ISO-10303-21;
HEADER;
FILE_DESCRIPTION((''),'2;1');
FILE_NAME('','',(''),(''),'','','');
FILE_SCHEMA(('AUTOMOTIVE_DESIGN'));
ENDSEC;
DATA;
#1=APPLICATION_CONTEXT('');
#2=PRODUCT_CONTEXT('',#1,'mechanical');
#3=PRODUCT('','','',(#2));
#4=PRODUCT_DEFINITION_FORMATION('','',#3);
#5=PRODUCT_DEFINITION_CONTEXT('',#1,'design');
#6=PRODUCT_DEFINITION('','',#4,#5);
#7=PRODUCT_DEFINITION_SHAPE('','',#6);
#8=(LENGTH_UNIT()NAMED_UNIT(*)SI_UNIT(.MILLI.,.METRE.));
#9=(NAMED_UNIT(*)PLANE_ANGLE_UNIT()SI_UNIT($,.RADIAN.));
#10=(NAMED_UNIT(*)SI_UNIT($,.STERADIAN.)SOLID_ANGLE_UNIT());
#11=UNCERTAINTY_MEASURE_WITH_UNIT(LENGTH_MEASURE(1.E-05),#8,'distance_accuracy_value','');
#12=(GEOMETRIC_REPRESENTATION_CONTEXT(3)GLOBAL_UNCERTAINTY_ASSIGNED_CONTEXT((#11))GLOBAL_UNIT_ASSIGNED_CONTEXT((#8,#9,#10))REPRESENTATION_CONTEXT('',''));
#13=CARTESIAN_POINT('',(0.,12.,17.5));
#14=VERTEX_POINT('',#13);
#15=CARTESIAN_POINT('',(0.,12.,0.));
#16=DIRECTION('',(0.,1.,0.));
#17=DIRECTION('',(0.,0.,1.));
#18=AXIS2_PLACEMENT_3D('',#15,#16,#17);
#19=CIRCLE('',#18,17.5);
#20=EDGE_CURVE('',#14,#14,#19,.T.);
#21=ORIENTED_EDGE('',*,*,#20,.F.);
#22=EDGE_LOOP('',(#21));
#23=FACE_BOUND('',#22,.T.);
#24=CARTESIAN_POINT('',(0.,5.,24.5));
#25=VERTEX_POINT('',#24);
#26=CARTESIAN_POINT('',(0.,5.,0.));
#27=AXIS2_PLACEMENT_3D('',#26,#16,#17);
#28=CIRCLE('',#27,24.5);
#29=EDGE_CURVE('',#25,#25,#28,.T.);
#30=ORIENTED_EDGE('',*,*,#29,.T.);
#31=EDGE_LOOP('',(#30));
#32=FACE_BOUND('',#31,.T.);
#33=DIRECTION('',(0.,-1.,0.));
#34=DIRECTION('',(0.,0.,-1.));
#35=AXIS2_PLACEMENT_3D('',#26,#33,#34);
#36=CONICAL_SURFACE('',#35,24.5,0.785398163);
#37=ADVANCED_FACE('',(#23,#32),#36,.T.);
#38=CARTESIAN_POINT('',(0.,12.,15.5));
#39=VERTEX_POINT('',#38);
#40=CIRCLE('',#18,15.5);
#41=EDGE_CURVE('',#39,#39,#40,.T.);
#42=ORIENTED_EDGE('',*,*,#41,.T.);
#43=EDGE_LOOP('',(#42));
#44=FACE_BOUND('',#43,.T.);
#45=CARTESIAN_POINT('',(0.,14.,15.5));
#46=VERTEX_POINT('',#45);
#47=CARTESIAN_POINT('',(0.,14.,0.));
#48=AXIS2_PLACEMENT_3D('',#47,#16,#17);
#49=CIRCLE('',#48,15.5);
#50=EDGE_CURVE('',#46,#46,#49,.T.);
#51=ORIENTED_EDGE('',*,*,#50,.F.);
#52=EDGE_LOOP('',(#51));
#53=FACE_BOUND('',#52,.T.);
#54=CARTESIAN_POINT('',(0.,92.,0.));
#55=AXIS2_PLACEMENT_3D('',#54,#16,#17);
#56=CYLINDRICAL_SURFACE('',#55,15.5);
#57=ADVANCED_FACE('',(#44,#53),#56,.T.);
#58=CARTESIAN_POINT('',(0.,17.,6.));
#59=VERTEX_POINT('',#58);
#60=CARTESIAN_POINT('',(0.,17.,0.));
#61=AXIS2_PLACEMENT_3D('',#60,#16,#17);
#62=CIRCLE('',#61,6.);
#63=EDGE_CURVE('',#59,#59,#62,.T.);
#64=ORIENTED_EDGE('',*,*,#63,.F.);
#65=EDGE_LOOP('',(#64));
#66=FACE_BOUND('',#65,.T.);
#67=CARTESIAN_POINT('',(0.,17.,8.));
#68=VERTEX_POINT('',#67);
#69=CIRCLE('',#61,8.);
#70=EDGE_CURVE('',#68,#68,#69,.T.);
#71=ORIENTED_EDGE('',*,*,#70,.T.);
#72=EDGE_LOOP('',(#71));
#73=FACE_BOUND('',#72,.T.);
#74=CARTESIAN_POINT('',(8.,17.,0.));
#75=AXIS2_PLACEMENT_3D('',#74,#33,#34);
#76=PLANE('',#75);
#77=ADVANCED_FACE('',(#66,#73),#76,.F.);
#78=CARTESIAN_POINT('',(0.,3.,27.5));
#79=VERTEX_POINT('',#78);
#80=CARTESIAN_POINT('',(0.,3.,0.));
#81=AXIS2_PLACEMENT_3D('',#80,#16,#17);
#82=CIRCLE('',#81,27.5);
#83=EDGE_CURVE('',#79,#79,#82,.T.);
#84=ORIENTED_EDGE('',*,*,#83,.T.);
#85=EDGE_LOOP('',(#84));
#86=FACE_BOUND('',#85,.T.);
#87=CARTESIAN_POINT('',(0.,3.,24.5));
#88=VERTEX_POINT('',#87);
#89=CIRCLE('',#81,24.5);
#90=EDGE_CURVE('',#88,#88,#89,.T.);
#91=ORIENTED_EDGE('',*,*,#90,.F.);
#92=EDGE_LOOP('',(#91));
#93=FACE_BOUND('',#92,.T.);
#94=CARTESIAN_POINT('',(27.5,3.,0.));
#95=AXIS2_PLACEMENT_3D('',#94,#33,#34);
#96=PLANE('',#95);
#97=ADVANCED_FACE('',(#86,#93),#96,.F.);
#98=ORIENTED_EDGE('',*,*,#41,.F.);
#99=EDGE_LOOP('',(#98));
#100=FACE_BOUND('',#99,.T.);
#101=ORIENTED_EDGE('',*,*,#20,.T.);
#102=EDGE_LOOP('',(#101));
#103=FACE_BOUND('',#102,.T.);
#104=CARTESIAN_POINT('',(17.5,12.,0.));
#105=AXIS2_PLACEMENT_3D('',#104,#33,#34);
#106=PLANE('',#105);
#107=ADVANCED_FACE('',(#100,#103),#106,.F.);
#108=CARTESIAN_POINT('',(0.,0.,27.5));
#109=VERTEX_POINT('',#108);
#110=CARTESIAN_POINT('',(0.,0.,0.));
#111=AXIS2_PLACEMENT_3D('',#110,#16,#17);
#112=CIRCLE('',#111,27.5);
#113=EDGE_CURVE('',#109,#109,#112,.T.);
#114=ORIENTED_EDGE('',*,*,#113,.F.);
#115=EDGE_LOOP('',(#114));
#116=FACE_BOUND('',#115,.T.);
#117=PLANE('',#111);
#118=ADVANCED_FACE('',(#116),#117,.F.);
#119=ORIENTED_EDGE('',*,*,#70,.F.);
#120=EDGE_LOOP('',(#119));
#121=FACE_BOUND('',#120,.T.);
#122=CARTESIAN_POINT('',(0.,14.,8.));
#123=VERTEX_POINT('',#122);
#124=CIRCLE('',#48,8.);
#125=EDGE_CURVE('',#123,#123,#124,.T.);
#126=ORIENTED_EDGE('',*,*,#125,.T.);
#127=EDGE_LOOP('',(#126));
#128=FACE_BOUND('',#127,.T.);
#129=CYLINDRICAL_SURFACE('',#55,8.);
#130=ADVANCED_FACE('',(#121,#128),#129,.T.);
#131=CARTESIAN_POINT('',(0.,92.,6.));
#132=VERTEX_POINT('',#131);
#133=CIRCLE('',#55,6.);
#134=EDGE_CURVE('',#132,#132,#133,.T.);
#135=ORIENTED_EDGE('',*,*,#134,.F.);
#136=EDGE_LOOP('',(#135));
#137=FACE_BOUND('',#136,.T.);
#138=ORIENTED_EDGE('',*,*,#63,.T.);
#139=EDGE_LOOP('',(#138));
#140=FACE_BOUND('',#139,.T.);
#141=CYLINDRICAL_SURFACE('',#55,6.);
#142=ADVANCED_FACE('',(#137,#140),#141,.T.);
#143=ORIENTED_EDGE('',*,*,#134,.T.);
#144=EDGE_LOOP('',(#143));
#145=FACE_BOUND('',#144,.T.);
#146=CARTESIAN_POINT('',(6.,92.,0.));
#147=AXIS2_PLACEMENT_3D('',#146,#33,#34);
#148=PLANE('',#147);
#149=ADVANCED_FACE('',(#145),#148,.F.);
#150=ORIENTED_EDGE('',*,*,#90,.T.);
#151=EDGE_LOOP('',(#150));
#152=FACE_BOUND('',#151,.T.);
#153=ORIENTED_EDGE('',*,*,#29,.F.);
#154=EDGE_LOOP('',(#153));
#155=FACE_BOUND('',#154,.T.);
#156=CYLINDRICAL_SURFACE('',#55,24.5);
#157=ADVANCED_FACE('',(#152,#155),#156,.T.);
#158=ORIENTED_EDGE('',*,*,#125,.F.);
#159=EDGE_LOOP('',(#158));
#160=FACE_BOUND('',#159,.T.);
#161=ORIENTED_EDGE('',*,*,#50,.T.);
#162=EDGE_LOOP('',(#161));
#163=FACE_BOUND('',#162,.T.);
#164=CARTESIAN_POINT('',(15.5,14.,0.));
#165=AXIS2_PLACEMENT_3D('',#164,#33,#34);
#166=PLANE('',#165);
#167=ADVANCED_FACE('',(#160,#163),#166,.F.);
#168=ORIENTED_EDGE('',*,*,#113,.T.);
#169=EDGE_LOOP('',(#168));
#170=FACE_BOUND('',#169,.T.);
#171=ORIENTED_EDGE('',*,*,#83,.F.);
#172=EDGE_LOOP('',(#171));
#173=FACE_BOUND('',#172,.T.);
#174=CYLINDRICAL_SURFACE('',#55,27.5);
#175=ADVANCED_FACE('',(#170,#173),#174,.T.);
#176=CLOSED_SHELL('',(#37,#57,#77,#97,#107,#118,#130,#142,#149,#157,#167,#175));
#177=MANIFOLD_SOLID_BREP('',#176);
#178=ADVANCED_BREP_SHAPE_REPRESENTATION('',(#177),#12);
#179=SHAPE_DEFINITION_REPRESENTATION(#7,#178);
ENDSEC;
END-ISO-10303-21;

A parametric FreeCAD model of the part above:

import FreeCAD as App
import Part
import Sketcher
from FreeCAD import Vector
Q = App.Units.Quantity

doc = App.newDocument("Part")
body = doc.addObject("PartDesign::Body", "Body")

sketch1 = body.newObject("Sketcher::SketchObject", "Sketch")
sketch1.AttachmentSupport = (doc.getObject("XY_Plane"), [""])
sketch1.MapMode = "FlatFace"
sketch1.addGeometry(Part.LineSegment(Vector(0, 0, 0), Vector(27.5, 0, 0)), False)
sketch1.addGeometry(Part.LineSegment(Vector(27.5, 0, 0), Vector(27.5, 3, 0)), False)
sketch1.addGeometry(Part.LineSegment(Vector(27.5, 3, 0), Vector(24.5, 3, 0)), False)
sketch1.addGeometry(Part.LineSegment(Vector(24.5, 3, 0), Vector(24.5, 5, 0)), False)
sketch1.addGeometry(Part.LineSegment(Vector(24.5, 5, 0), Vector(17.5, 12, 0)), False)
sketch1.addGeometry(Part.LineSegment(Vector(17.5, 12, 0), Vector(15.5, 12, 0)), False)
sketch1.addGeometry(Part.LineSegment(Vector(15.5, 12, 0), Vector(15.5, 14, 0)), False)
sketch1.addGeometry(Part.LineSegment(Vector(15.5, 14, 0), Vector(8, 14, 0)), False)
sketch1.addGeometry(Part.LineSegment(Vector(8, 14, 0), Vector(8, 17, 0)), False)
sketch1.addGeometry(Part.LineSegment(Vector(8, 17, 0), Vector(6, 17, 0)), False)
sketch1.addGeometry(Part.LineSegment(Vector(6, 17, 0), Vector(6, 92, 0)), False)
sketch1.addGeometry(Part.LineSegment(Vector(6, 92, 0), Vector(0, 92, 0)), False)
sketch1.addGeometry(Part.LineSegment(Vector(0, 92, 0), Vector(0, 0, 0)), False)
sketch1.addConstraint(Sketcher.Constraint("Coincident", 0, 2, 1, 1))
sketch1.addConstraint(Sketcher.Constraint("Coincident", 1, 2, 2, 1))
sketch1.addConstraint(Sketcher.Constraint("Coincident", 2, 2, 3, 1))
sketch1.addConstraint(Sketcher.Constraint("Coincident", 3, 2, 4, 1))
sketch1.addConstraint(Sketcher.Constraint("Coincident", 4, 2, 5, 1))
sketch1.addConstraint(Sketcher.Constraint("Coincident", 5, 2, 6, 1))
sketch1.addConstraint(Sketcher.Constraint("Coincident", 6, 2, 7, 1))
sketch1.addConstraint(Sketcher.Constraint("Coincident", 7, 2, 8, 1))
sketch1.addConstraint(Sketcher.Constraint("Coincident", 8, 2, 9, 1))
sketch1.addConstraint(Sketcher.Constraint("Coincident", 9, 2, 10, 1))
sketch1.addConstraint(Sketcher.Constraint("Coincident", 10, 2, 11, 1))
sketch1.addConstraint(Sketcher.Constraint("Coincident", 11, 2, 12, 1))
sketch1.addConstraint(Sketcher.Constraint("Coincident", 12, 2, 0, 1))
sketch1.addConstraint(Sketcher.Constraint("Horizontal", 0))
sketch1.addConstraint(Sketcher.Constraint("Vertical", 1))
sketch1.addConstraint(Sketcher.Constraint("Horizontal", 2))
sketch1.addConstraint(Sketcher.Constraint("Vertical", 3))
sketch1.addConstraint(Sketcher.Constraint("Horizontal", 5))
sketch1.addConstraint(Sketcher.Constraint("Vertical", 6))
sketch1.addConstraint(Sketcher.Constraint("Horizontal", 7))
sketch1.addConstraint(Sketcher.Constraint("Vertical", 8))
sketch1.addConstraint(Sketcher.Constraint("Horizontal", 9))
sketch1.addConstraint(Sketcher.Constraint("Vertical", 10))
sketch1.addConstraint(Sketcher.Constraint("Horizontal", 11))
sketch1.addConstraint(Sketcher.Constraint("Vertical", 12))
sketch1.addConstraint(Sketcher.Constraint("Coincident", 12, 2, -1, 1))
sketch1.addConstraint(Sketcher.Constraint("Equal", 5, 9))
sketch1.addConstraint(Sketcher.Constraint("Equal", 2, 1))
sketch1.addConstraint(Sketcher.Constraint("Equal", 9, 3))
sketch1.addConstraint(Sketcher.Constraint("Equal", 3, 6))
sketch1.addConstraint(Sketcher.Constraint("Equal", 1, 8))
sketch1.addConstraint(Sketcher.Constraint("DistanceX", 2, 2, 2, 1, Q("3 mm")))
sketch1.addConstraint(Sketcher.Constraint("DistanceX", 5, 2, 5, 1, Q("2 mm")))
sketch1.addConstraint(Sketcher.Constraint("DistanceX", 11, 2, 11, 1, Q("6 mm")))
sketch1.addConstraint(Sketcher.Constraint("DistanceY", 10, 1, 10, 2, Q("75 mm")))
sketch1.addConstraint(Sketcher.Constraint("DistanceY", 12, 2, 12, 1, Q("92 mm")))
sketch1.addConstraint(Sketcher.Constraint("Angle", 4, Q("135 deg")))
sketch1.addConstraint(Sketcher.Constraint("DistanceX", 0, 1, 0, 2, Q("27.5 mm")))
revolution = body.newObject("PartDesign::Revolution", "Revolution")
revolution.Profile = sketch1
revolution.ReferenceAxis = (sketch1, ["V_Axis"])
revolution.Angle = 360

doc.recompute()
